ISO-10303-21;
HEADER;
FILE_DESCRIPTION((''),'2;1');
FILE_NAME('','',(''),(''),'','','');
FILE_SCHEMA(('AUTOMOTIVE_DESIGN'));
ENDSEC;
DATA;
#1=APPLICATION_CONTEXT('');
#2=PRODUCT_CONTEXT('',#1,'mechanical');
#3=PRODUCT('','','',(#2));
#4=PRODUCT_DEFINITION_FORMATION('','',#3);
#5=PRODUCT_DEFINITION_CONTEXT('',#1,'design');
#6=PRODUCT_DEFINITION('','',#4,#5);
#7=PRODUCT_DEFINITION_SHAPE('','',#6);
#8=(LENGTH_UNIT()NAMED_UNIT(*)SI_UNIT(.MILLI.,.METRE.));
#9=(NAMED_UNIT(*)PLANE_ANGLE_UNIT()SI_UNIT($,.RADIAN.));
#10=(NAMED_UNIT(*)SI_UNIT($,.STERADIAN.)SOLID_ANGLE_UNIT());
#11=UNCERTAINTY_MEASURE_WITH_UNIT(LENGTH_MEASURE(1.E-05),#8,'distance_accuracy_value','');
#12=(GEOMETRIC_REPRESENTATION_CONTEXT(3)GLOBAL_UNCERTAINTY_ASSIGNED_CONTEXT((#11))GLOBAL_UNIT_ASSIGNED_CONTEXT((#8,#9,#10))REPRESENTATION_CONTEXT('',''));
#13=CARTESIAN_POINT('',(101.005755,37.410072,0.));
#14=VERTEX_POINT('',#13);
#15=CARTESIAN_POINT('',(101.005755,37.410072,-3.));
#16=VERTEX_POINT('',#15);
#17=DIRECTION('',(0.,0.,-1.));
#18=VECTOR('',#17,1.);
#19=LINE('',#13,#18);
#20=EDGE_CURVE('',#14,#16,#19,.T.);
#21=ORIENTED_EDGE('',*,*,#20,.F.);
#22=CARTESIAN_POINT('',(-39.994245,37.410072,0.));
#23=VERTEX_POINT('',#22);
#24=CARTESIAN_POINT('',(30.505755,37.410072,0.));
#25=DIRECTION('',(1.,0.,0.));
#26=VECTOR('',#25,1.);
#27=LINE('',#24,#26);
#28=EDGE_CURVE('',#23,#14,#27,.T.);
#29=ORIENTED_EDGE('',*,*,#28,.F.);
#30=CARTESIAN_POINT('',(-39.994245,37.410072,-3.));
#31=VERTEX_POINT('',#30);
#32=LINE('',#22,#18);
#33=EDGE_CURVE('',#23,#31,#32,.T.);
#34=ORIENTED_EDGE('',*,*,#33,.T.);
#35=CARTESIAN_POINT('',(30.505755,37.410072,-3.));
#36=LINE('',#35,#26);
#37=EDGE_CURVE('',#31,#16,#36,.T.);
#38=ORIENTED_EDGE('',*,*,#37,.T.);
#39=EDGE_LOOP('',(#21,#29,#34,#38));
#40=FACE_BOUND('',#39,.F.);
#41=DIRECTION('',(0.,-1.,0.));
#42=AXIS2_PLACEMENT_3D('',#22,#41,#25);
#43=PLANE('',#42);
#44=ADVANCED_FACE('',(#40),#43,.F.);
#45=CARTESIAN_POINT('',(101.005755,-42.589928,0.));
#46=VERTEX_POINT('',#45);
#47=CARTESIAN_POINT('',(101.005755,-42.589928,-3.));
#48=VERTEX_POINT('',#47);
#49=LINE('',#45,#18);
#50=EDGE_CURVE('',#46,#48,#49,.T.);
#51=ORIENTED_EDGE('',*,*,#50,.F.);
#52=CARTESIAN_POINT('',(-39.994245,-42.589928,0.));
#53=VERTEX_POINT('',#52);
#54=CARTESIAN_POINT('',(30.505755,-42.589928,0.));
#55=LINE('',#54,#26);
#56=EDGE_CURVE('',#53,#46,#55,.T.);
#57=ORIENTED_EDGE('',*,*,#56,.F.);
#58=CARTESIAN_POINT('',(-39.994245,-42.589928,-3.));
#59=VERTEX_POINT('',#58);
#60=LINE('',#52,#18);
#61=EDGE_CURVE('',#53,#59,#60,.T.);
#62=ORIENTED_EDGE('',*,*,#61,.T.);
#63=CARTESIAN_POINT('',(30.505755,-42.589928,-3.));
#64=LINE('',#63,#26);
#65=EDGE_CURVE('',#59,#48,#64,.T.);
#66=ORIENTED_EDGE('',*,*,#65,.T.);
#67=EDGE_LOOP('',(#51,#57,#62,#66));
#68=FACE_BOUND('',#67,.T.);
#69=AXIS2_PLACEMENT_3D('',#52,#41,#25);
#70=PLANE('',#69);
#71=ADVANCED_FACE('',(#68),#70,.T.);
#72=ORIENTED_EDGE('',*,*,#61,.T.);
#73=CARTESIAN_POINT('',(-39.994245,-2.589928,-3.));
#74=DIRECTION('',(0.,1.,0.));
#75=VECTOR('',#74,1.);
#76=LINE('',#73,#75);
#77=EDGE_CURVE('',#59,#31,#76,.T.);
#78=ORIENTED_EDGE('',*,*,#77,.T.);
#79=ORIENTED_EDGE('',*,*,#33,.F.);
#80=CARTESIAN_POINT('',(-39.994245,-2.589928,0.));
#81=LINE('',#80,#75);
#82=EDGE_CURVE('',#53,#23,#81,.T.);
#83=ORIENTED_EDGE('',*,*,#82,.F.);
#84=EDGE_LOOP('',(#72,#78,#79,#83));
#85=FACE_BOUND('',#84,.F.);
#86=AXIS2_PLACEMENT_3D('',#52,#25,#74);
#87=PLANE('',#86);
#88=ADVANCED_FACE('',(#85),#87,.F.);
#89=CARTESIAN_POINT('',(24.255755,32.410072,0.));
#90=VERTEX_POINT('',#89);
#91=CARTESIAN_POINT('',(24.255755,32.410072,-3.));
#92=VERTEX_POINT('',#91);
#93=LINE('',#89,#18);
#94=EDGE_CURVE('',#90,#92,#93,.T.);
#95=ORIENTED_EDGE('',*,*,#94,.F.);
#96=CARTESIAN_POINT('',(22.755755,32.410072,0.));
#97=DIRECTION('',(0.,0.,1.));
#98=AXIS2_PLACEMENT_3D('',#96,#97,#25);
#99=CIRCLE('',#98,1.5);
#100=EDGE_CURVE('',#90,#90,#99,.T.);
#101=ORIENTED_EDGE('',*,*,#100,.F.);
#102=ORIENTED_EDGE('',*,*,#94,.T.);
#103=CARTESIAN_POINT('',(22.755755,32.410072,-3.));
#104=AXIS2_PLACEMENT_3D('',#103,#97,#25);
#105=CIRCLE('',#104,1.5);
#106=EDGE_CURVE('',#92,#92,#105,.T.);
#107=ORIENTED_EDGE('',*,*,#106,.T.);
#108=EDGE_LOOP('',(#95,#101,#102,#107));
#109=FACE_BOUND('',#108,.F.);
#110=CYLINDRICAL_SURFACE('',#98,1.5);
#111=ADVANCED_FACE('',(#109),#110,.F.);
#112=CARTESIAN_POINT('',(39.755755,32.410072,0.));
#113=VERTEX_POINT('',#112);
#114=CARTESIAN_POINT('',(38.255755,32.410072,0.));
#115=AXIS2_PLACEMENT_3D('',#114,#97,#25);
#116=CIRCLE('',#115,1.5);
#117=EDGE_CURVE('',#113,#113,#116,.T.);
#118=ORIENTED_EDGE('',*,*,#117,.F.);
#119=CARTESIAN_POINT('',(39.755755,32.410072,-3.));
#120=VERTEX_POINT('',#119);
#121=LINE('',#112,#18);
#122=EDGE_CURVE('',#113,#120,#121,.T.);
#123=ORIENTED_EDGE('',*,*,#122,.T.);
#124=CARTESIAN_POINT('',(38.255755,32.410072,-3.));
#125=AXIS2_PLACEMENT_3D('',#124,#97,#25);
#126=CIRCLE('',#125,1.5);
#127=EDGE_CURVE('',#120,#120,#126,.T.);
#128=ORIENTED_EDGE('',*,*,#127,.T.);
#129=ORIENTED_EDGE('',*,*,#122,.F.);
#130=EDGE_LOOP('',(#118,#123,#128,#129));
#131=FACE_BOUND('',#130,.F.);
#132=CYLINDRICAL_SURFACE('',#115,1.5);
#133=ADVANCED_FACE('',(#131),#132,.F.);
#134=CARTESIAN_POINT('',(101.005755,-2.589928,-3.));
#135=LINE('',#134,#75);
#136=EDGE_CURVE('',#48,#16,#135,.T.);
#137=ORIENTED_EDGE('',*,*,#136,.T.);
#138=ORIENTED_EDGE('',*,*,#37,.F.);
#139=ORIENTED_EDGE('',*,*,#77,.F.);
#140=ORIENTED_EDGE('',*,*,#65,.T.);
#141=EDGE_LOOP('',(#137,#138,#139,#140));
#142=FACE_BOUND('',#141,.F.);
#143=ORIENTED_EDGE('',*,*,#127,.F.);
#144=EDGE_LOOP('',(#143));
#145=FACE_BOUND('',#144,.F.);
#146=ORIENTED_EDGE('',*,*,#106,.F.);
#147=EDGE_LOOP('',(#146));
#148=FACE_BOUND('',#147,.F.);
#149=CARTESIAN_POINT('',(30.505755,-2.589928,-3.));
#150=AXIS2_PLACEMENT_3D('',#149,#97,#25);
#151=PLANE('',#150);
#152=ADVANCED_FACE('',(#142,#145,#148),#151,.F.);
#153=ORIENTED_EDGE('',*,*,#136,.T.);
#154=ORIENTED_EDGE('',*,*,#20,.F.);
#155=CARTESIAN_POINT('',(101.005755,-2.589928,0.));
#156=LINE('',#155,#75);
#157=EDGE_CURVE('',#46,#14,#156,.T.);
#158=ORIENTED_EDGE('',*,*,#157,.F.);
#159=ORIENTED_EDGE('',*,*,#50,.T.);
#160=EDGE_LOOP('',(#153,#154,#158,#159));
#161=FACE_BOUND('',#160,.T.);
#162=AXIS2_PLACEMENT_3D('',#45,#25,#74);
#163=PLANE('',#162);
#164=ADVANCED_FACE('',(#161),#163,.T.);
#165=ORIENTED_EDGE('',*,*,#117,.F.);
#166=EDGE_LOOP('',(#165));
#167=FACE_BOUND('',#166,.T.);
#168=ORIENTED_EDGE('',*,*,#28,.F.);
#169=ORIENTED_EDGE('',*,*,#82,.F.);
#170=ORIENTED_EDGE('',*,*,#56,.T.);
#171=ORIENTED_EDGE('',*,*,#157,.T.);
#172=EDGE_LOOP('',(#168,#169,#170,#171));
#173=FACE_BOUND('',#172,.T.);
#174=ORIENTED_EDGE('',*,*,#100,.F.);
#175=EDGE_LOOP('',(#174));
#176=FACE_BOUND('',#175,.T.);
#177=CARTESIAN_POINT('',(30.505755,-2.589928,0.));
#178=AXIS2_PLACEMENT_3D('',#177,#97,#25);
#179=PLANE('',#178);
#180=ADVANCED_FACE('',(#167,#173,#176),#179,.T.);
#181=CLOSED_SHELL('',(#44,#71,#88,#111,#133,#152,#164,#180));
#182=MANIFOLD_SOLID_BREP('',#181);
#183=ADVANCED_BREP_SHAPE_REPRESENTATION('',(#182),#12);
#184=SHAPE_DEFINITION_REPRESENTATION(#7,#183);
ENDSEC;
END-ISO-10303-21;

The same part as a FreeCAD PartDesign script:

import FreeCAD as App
import Part
import Sketcher
from FreeCAD import Vector
Q = App.Units.Quantity


def add_polygon(sketch, points):
    """Adds a closed chain of lines whose ends are joined by coincident constraints."""
    first, n = sketch.GeometryCount, len(points)
    for a, b in zip(points, points[1:] + points[:1]):
        sketch.addGeometry(Part.LineSegment(App.Vector(*a, 0), App.Vector(*b, 0)), False)
    for i in range(n):
        sketch.addConstraint(Sketcher.Constraint("Coincident", first + i, 2, first + (i + 1) % n, 1))

doc = App.newDocument("Part")
body = doc.addObject("PartDesign::Body", "Body")

sketch1 = body.newObject("Sketcher::SketchObject", "Sketch")
sketch1.AttachmentSupport = (doc.getObject("XY_Plane"), [""])
sketch1.MapMode = "FlatFace"
add_polygon(sketch1, [(-40, 37), (-40, -43), (101, -43), (101, 37)])
sketch1.addConstraint(Sketcher.Constraint("Vertical", 0))
sketch1.addConstraint(Sketcher.Constraint("Horizontal", 1))
sketch1.addConstraint(Sketcher.Constraint("Vertical", 2))
sketch1.addConstraint(Sketcher.Constraint("Horizontal", 3))
sketch1.addConstraint(Sketcher.Constraint("DistanceX", 1, 1, 1, 2, Q("141 mm")))
sketch1.addConstraint(Sketcher.Constraint("DistanceY", 0, 2, 0, 1, Q("80 mm")))
sketch1.addConstraint(Sketcher.Constraint("DistanceY", 0, 2, -1, 1, Q("42.589928 mm")))
sketch1.addConstraint(Sketcher.Constraint("DistanceX", 0, 2, -1, 1, Q("39.994245 mm")))
pad1 = body.newObject("PartDesign::Pad", "Pad")
pad1.Profile = sketch1
pad1.Length = 3
pad1.Reversed = True

sketch2 = body.newObject("Sketcher::SketchObject", "Sketch001")
sketch2.AttachmentSupport = (doc.getObject("XY_Plane"), [""])
sketch2.MapMode = "FlatFace"
sketch2.addGeometry(Part.Circle(Vector(22.8, 32.4, 0), Vector(0, 0, 1), 1.5), False)
sketch2.addGeometry(Part.Circle(Vector(38.3, 32.4, 0), Vector(0, 0, 1), 1.5), False)
sketch2.addConstraint(Sketcher.Constraint("Equal", 0, 1))
sketch2.addConstraint(Sketcher.Constraint("Horizontal", 0, 3, 1, 3))
sketch2.addConstraint(Sketcher.Constraint("Diameter", 0, Q("3 mm")))
sketch2.addConstraint(Sketcher.Constraint("DistanceX", 0, 3, 1, 3, Q("15.5 mm")))
sketch2.addConstraint(Sketcher.Constraint("DistanceY", -1, 1, 0, 3, Q("32.410072 mm")))
sketch2.addConstraint(Sketcher.Constraint("DistanceX", -1, 1, 0, 3, Q("22.755755 mm")))
pocket1 = body.newObject("PartDesign::Pocket", "Pocket")
pocket1.Profile = sketch2
pocket1.Type = "ThroughAll"

doc.recompute()
